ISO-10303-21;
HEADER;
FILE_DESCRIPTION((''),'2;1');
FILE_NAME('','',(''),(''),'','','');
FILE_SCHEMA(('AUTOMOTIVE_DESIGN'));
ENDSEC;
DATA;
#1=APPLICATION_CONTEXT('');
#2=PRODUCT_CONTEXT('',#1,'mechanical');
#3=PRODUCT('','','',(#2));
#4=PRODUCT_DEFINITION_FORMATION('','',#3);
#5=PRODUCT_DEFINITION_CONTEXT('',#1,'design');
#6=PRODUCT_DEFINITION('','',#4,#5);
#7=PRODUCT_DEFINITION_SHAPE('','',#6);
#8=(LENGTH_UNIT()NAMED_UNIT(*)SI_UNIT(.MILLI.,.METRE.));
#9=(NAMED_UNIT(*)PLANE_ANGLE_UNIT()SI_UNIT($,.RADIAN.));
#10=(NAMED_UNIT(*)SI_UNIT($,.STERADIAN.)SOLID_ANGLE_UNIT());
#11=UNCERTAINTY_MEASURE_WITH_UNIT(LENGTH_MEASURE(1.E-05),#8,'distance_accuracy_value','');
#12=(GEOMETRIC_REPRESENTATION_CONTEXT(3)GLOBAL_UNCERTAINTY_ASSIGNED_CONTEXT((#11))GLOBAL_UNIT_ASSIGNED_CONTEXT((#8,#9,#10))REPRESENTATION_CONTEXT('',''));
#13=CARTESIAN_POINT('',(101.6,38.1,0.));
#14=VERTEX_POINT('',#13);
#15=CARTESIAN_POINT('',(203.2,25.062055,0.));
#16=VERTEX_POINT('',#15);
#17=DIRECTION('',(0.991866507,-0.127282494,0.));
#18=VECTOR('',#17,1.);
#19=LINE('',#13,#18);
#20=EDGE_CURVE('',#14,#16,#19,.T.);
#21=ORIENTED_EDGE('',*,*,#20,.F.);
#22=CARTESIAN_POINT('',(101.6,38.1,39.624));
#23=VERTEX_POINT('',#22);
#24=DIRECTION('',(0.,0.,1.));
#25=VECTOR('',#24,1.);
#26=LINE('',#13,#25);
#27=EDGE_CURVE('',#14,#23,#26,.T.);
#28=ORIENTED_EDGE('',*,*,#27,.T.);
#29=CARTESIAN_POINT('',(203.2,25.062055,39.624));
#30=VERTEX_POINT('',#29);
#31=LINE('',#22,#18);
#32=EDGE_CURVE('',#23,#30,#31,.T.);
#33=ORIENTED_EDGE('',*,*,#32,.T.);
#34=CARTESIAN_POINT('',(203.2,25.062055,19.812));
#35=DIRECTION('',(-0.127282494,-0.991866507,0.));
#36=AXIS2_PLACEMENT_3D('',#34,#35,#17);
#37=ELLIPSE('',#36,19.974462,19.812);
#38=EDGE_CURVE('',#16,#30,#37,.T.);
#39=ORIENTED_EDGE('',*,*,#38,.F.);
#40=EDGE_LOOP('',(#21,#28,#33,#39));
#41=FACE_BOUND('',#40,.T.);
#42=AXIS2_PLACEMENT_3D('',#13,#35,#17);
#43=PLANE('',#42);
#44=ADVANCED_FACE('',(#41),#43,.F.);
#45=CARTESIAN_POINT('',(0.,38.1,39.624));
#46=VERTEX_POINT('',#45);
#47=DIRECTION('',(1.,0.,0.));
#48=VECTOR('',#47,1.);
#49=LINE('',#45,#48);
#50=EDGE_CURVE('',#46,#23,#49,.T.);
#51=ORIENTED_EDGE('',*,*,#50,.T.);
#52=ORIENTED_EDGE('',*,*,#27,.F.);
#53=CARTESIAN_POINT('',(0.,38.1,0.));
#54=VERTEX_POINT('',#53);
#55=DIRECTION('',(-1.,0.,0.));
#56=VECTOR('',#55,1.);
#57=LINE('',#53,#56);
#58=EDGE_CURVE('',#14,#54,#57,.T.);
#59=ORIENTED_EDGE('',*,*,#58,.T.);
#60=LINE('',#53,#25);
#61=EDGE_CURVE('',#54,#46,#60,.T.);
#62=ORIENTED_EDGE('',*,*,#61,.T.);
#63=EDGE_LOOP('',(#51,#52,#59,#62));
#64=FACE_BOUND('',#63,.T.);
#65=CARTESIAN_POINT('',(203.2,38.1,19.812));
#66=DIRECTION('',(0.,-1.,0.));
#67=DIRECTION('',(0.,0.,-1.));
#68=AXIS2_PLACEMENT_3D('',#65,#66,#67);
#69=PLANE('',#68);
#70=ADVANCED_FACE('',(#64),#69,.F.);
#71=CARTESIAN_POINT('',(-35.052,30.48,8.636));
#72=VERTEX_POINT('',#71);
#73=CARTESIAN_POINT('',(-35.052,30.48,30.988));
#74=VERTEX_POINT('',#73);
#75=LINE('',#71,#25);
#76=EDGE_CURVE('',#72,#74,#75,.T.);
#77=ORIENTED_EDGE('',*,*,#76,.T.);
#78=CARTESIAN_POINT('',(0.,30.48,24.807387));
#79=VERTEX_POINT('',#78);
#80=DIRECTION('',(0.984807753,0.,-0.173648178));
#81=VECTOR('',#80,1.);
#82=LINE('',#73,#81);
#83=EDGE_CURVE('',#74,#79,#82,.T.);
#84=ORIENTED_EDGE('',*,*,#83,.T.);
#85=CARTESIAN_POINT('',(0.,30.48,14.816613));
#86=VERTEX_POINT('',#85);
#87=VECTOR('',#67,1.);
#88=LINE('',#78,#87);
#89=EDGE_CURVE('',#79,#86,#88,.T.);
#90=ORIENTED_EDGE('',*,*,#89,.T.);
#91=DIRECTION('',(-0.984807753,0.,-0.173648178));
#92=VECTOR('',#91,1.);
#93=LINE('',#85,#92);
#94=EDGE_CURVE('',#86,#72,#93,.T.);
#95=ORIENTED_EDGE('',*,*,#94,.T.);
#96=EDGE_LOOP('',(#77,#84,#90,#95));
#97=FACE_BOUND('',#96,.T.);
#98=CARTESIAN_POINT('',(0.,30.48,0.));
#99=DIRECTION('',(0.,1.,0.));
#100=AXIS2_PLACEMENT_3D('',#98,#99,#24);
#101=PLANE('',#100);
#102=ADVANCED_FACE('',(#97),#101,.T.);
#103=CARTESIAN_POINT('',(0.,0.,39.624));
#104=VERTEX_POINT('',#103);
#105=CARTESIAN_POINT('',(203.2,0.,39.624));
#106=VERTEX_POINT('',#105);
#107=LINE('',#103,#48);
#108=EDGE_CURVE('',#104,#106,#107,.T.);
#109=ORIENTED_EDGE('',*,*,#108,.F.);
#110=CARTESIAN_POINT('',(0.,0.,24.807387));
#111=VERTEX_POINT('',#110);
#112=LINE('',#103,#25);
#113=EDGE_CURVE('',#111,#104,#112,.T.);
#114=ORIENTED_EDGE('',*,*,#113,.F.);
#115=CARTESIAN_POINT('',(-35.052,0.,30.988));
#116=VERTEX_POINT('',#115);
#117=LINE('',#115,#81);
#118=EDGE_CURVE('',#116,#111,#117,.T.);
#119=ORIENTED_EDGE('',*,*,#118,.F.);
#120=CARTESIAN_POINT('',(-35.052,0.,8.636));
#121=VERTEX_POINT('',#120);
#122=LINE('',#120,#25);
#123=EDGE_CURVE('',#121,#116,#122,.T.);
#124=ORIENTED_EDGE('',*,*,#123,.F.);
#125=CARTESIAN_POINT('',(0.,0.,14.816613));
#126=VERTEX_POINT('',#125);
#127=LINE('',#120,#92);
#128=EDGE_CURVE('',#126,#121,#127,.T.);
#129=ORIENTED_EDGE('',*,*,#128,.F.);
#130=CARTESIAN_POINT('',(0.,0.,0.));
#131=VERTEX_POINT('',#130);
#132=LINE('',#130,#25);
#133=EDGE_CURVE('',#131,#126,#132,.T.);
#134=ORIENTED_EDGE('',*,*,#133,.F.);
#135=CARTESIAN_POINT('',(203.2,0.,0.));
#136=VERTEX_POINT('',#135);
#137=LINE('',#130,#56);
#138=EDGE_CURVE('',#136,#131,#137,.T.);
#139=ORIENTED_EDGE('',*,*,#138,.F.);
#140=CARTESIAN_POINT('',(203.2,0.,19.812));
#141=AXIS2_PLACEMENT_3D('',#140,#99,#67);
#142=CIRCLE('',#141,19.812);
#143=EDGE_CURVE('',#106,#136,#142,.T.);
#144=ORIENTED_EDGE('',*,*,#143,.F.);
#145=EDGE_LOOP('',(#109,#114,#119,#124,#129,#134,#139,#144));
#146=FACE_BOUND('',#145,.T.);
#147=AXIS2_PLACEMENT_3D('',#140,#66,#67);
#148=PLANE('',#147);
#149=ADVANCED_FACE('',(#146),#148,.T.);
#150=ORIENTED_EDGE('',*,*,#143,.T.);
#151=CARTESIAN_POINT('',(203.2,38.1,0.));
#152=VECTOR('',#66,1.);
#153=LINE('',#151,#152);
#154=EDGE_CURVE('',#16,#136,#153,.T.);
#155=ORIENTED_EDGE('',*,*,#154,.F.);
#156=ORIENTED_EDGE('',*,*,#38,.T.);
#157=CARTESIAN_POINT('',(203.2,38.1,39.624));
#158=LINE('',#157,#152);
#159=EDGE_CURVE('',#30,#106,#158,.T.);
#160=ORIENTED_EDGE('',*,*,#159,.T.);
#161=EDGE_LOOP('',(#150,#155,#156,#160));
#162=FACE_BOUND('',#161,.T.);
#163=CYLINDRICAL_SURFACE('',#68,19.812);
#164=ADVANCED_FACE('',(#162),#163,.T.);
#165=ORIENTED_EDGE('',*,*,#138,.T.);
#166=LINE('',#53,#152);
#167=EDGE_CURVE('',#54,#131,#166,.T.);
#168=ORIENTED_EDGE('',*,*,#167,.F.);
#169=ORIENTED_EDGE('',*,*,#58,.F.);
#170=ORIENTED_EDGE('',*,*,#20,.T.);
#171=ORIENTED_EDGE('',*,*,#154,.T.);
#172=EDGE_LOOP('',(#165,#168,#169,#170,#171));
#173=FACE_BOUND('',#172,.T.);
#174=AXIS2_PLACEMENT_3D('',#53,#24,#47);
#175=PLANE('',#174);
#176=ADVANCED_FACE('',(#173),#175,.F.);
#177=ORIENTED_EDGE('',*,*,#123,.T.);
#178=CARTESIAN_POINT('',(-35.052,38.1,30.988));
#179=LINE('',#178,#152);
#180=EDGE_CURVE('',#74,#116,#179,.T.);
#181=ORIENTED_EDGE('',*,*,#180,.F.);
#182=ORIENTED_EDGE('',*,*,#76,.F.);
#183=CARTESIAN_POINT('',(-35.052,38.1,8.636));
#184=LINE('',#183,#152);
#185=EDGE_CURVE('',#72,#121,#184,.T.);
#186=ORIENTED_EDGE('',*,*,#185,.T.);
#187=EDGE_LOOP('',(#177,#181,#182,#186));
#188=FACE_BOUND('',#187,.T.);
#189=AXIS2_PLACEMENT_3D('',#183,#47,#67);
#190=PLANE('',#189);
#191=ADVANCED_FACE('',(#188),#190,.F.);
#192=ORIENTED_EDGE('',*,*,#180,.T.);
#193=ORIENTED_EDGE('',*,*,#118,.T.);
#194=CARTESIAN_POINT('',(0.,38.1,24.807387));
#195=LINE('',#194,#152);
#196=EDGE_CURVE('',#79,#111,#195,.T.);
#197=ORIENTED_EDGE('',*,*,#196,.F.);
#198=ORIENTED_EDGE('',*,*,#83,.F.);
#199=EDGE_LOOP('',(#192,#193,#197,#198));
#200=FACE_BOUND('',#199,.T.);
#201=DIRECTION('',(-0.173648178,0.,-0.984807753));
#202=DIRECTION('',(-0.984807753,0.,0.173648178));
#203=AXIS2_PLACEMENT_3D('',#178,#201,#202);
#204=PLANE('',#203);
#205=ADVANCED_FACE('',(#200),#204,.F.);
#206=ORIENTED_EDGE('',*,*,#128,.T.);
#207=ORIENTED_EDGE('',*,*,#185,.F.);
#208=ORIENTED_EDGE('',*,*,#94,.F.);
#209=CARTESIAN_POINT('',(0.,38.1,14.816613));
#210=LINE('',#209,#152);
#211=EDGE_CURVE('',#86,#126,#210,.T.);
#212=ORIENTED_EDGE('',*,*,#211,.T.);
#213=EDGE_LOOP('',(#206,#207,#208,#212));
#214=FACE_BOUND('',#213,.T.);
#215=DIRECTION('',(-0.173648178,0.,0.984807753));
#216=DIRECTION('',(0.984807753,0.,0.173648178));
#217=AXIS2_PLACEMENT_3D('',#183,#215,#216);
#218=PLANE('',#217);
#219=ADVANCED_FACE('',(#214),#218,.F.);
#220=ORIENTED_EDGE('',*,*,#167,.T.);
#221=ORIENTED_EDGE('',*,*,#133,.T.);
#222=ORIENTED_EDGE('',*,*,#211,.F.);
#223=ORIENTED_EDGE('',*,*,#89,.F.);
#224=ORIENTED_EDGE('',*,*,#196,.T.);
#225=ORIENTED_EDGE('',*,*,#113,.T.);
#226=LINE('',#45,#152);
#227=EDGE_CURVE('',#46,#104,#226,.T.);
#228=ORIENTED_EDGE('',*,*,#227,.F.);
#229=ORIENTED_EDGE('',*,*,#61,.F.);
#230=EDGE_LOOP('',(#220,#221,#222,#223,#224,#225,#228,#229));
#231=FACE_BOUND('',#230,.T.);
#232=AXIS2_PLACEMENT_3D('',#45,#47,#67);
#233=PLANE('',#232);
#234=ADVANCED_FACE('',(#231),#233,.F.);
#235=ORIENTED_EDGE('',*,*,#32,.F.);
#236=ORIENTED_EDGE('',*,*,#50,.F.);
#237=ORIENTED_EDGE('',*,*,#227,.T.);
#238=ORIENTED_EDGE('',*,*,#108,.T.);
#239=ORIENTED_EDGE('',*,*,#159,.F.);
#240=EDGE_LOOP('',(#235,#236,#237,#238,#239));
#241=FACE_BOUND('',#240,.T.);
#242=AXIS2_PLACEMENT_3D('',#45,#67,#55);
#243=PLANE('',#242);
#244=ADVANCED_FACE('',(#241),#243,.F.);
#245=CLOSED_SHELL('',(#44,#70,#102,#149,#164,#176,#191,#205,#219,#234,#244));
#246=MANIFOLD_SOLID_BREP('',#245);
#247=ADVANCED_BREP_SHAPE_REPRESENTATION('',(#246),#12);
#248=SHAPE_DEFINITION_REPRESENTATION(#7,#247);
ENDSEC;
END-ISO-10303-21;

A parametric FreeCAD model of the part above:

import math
import FreeCAD as App
import Part
import Sketcher

V = App.Vector
Q = App.Units.Quantity


def add_polygon(sketch, points):
    """Adds a closed chain of lines whose ends are joined by coincident constraints."""
    first, n = sketch.GeometryCount, len(points)
    for a, b in zip(points, points[1:] + points[:1]):
        sketch.addGeometry(Part.LineSegment(App.Vector(*a, 0), App.Vector(*b, 0)), False)
    for i in range(n):
        sketch.addConstraint(Sketcher.Constraint("Coincident", first + i, 2, first + (i + 1) % n, 1))

doc = App.newDocument("Part")
params = doc.addObject("Spreadsheet::Sheet", "Params")
for row, (alias, value) in enumerate([
    ("sketch1_width", "8 in"),
    ("sketch1_radius", "0.78 in"),
    ("sketch1_height", "0.88 in"),
    ("pad1_length", "1.5 in"),
    ("sketch2_height", "0.88 in"),
    ("pocket1_length", "0.3 in"),
    ("sketch3_width", "4.78 in"),
    ("pocket2_length", "1.56 in"),
], start=1):
    params.set(f"A{row}", alias)
    params.set(f"B{row}", "=" + value)
    params.setAlias(f"B{row}", alias)

body = doc.addObject("PartDesign::Body", "Body")

sketch1 = body.newObject("Sketcher::SketchObject", "Sketch")
sketch1.AttachmentSupport = (doc.getObject("XZ_Plane"), [""])
sketch1.MapMode = "FlatFace"
sketch1.addGeometry([
    Part.LineSegment(V(-35.052, 8.636, 0), V(-35.052, 30.988, 0)),
    Part.LineSegment(V(-35.052, 30.988, 0), V(0, 24.807387, 0)),
    Part.LineSegment(V(0, 24.807387, 0), V(0, 39.624, 0)),
    Part.LineSegment(V(0, 39.624, 0), V(203.2, 39.624, 0)),
    Part.ArcOfCircle(Part.Circle(V(203.2, 19.812, 0), V(0, 0, 1), 19.812), math.radians(-90), math.radians(90)),
    Part.LineSegment(V(203.2, 0, 0), V(0, 0, 0)),
    Part.LineSegment(V(0, 0, 0), V(0, 14.816613, 0)),
    Part.LineSegment(V(0, 14.816613, 0), V(-35.052, 8.636, 0)),
], False)
sketch1.addConstraint([
    Sketcher.Constraint("Coincident", 0, 2, 1, 1),
    Sketcher.Constraint("Coincident", 1, 2, 2, 1),
    Sketcher.Constraint("Coincident", 2, 2, 3, 1),
    Sketcher.Constraint("Tangent", 3, 2, 4, 2),
    Sketcher.Constraint("Tangent", 4, 1, 5, 1),
    Sketcher.Constraint("Coincident", 5, 2, 6, 1),
    Sketcher.Constraint("Coincident", 6, 2, 7, 1),
    Sketcher.Constraint("Coincident", 7, 2, 0, 1),
    Sketcher.Constraint("Vertical", 0),
    Sketcher.Constraint("Vertical", 2),
    Sketcher.Constraint("Horizontal", 3),
    Sketcher.Constraint("Horizontal", 5),
    Sketcher.Constraint("Vertical", 6),
    Sketcher.Constraint("Coincident", 5, 2, -1, 1),
    Sketcher.Constraint("PointOnObject", 1, 2, -2),
    Sketcher.Constraint("Equal", 2, 6),
    Sketcher.Constraint("Equal", 1, 7),
    Sketcher.Constraint("DistanceX", 3, 1, 3, 2, Q("8 in")),
    Sketcher.Constraint("Radius", 4, Q("0.78 in")),
    Sketcher.Constraint("Angle", 1, Q("-10 deg")),
    Sketcher.Constraint("DistanceY", 0, 1, 0, 2, Q("0.88 in")),
    Sketcher.Constraint("DistanceX", 0, 2, -1, 1, Q("1.38 in")),
])
sketch1.setExpression("Constraints[17]", "Params.sketch1_width")
sketch1.setExpression("Constraints[18]", "Params.sketch1_radius")
sketch1.setExpression("Constraints[20]", "Params.sketch1_height")
pad1 = body.newObject("PartDesign::Pad", "Pad")
pad1.Profile = sketch1
pad1.setExpression("Length", "Params.pad1_length")
pad1.Reversed = True

sketch2 = body.newObject("Sketcher::SketchObject", "Sketch001")
sketch2.AttachmentSupport = (doc.getObject("XZ_Plane"), [""])
sketch2.MapMode = "FlatFace"
sketch2.AttachmentOffset = App.Placement(V(0, 0, -1.5 * 25.4), App.Rotation())
add_polygon(sketch2, [(-35.052, 8.636), (-35.052, 30.988), (0, 24.807387), (0, 14.816613)])
sketch2.addConstraint([
    Sketcher.Constraint("Vertical", 0),
    Sketcher.Constraint("Vertical", 2),
    Sketcher.Constraint("PointOnObject", 1, 2, -2),
    Sketcher.Constraint("Equal", 1, 3),
    Sketcher.Constraint("Angle", 1, Q("-10 deg")),
    Sketcher.Constraint("DistanceY", 0, 1, 0, 2, Q("0.88 in")),
    Sketcher.Constraint("DistanceX", 0, 2, -1, 1, Q("1.38 in")),
    Sketcher.Constraint("DistanceY", -1, 1, 0, 2, Q("1.22 in")),
])
sketch2.setExpression("Constraints[9]", "Params.sketch2_height")
pocket1 = body.newObject("PartDesign::Pocket", "Pocket")
pocket1.Profile = sketch2
pocket1.setExpression("Length", "Params.pocket1_length")
pocket1.Reversed = True

sketch3 = body.newObject("Sketcher::SketchObject", "Sketch002")
sketch3.AttachmentSupport = (doc.getObject("XY_Plane"), [""])
sketch3.MapMode = "FlatFace"
sketch3.AttachmentOffset = App.Placement(V(0, 0, 1.56 * 25.4), App.Rotation())
add_polygon(sketch3, [(101.6, 38.1), (223.012, 22.519655), (223.012, 38.1)])
sketch3.addConstraint([
    Sketcher.Constraint("Vertical", 1),
    Sketcher.Constraint("Horizontal", 2),
    Sketcher.Constraint("DistanceX", -1, 1, 2, 2, Q("4 in")),
    Sketcher.Constraint("DistanceX", 2, 2, 2, 1, Q("4.78 in")),
    Sketcher.Constraint("DistanceY", -1, 1, 1, 2, Q("1.5 in")),
    Sketcher.Constraint("Distance", 0, 122.407601),
])
sketch3.setExpression("Constraints[6]", "Params.sketch3_width")
pocket2 = body.newObject("PartDesign::Pocket", "Pocket001")
pocket2.Profile = sketch3
pocket2.setExpression("Length", "Params.pocket2_length")

doc.recompute()
